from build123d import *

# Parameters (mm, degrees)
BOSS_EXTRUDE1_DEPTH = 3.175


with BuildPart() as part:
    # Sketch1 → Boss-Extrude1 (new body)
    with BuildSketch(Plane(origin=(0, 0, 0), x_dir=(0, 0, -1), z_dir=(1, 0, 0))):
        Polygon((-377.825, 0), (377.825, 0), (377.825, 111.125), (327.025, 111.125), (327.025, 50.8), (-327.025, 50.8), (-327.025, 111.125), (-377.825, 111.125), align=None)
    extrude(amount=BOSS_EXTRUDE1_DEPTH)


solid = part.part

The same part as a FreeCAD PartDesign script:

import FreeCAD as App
import Part
import Sketcher
from FreeCAD import Vector
Q = App.Units.Quantity

doc = App.newDocument("Part")
body = doc.addObject("PartDesign::Body", "Body")

# Sketch on YZ plane
sketch1 = body.newObject("Sketcher::SketchObject", "Sketch")
sketch1.AttachmentSupport = (doc.getObject("YZ_Plane"), [""])
sketch1.MapMode = "FlatFace"
sketch1.addGeometry(Part.LineSegment(Vector(0, 377.825, 0), Vector(0, -377.825, 0)), False)
sketch1.addGeometry(Part.LineSegment(Vector(0, -377.825, 0), Vector(111.125, -377.825, 0)), False)
sketch1.addGeometry(Part.LineSegment(Vector(111.125, -377.825, 0), Vector(111.125, -327.025, 0)), False)
sketch1.addGeometry(Part.LineSegment(Vector(111.125, -327.025, 0), Vector(50.8, -327.025, 0)), False)
sketch1.addGeometry(Part.LineSegment(Vector(50.8, -327.025, 0), Vector(50.8, 327.025, 0)), False)
sketch1.addGeometry(Part.LineSegment(Vector(50.8, 327.025, 0), Vector(111.125, 327.025, 0)), False)
sketch1.addGeometry(Part.LineSegment(Vector(111.125, 327.025, 0), Vector(111.125, 377.825, 0)), False)
sketch1.addGeometry(Part.LineSegment(Vector(111.125, 377.825, 0), Vector(0, 377.825, 0)), False)
sketch1.addConstraint(Sketcher.Constraint("Coincident", 0, 2, 1, 1))
sketch1.addConstraint(Sketcher.Constraint("Coincident", 1, 2, 2, 1))
sketch1.addConstraint(Sketcher.Constraint("Coincident", 2, 2, 3, 1))
sketch1.addConstraint(Sketcher.Constraint("Coincident", 3, 2, 4, 1))
sketch1.addConstraint(Sketcher.Constraint("Coincident", 4, 2, 5, 1))
sketch1.addConstraint(Sketcher.Constraint("Coincident", 5, 2, 6, 1))
sketch1.addConstraint(Sketcher.Constraint("Coincident", 6, 2, 7, 1))
sketch1.addConstraint(Sketcher.Constraint("Coincident", 7, 2, 0, 1))
sketch1.addConstraint(Sketcher.Constraint("Vertical", 0))
sketch1.addConstraint(Sketcher.Constraint("Horizontal", 1))
sketch1.addConstraint(Sketcher.Constraint("Vertical", 2))
sketch1.addConstraint(Sketcher.Constraint("Horizontal", 3))
sketch1.addConstraint(Sketcher.Constraint("Vertical", 4))
sketch1.addConstraint(Sketcher.Constraint("Horizontal", 5))
sketch1.addConstraint(Sketcher.Constraint("Vertical", 6))
sketch1.addConstraint(Sketcher.Constraint("Horizontal", 7))
sketch1.addConstraint(Sketcher.Constraint("Symmetric", 0, 2, 7, 2, -1, 1))
sketch1.addConstraint(Sketcher.Constraint("Symmetric", 2, 2, 5, 2, -1))
sketch1.addConstraint(Sketcher.Constraint("DistanceY", 2, 1, 2, 2, Q("2 in")))
sketch1.addConstraint(Sketcher.Constraint("DistanceX", -1, 1, 3, 2, Q("2 in")))
sketch1.addConstraint(Sketcher.Constraint("DistanceY", 0, 2, 0, 1, Q("29.75 in")))
sketch1.addConstraint(Sketcher.Constraint("DistanceX", 1, 1, 1, 2, Q("4.375 in")))
pad1 = body.newObject("PartDesign::Pad", "Pad")
pad1.Profile = sketch1
pad1.Length = Q("0.125 in")

doc.recompute()
